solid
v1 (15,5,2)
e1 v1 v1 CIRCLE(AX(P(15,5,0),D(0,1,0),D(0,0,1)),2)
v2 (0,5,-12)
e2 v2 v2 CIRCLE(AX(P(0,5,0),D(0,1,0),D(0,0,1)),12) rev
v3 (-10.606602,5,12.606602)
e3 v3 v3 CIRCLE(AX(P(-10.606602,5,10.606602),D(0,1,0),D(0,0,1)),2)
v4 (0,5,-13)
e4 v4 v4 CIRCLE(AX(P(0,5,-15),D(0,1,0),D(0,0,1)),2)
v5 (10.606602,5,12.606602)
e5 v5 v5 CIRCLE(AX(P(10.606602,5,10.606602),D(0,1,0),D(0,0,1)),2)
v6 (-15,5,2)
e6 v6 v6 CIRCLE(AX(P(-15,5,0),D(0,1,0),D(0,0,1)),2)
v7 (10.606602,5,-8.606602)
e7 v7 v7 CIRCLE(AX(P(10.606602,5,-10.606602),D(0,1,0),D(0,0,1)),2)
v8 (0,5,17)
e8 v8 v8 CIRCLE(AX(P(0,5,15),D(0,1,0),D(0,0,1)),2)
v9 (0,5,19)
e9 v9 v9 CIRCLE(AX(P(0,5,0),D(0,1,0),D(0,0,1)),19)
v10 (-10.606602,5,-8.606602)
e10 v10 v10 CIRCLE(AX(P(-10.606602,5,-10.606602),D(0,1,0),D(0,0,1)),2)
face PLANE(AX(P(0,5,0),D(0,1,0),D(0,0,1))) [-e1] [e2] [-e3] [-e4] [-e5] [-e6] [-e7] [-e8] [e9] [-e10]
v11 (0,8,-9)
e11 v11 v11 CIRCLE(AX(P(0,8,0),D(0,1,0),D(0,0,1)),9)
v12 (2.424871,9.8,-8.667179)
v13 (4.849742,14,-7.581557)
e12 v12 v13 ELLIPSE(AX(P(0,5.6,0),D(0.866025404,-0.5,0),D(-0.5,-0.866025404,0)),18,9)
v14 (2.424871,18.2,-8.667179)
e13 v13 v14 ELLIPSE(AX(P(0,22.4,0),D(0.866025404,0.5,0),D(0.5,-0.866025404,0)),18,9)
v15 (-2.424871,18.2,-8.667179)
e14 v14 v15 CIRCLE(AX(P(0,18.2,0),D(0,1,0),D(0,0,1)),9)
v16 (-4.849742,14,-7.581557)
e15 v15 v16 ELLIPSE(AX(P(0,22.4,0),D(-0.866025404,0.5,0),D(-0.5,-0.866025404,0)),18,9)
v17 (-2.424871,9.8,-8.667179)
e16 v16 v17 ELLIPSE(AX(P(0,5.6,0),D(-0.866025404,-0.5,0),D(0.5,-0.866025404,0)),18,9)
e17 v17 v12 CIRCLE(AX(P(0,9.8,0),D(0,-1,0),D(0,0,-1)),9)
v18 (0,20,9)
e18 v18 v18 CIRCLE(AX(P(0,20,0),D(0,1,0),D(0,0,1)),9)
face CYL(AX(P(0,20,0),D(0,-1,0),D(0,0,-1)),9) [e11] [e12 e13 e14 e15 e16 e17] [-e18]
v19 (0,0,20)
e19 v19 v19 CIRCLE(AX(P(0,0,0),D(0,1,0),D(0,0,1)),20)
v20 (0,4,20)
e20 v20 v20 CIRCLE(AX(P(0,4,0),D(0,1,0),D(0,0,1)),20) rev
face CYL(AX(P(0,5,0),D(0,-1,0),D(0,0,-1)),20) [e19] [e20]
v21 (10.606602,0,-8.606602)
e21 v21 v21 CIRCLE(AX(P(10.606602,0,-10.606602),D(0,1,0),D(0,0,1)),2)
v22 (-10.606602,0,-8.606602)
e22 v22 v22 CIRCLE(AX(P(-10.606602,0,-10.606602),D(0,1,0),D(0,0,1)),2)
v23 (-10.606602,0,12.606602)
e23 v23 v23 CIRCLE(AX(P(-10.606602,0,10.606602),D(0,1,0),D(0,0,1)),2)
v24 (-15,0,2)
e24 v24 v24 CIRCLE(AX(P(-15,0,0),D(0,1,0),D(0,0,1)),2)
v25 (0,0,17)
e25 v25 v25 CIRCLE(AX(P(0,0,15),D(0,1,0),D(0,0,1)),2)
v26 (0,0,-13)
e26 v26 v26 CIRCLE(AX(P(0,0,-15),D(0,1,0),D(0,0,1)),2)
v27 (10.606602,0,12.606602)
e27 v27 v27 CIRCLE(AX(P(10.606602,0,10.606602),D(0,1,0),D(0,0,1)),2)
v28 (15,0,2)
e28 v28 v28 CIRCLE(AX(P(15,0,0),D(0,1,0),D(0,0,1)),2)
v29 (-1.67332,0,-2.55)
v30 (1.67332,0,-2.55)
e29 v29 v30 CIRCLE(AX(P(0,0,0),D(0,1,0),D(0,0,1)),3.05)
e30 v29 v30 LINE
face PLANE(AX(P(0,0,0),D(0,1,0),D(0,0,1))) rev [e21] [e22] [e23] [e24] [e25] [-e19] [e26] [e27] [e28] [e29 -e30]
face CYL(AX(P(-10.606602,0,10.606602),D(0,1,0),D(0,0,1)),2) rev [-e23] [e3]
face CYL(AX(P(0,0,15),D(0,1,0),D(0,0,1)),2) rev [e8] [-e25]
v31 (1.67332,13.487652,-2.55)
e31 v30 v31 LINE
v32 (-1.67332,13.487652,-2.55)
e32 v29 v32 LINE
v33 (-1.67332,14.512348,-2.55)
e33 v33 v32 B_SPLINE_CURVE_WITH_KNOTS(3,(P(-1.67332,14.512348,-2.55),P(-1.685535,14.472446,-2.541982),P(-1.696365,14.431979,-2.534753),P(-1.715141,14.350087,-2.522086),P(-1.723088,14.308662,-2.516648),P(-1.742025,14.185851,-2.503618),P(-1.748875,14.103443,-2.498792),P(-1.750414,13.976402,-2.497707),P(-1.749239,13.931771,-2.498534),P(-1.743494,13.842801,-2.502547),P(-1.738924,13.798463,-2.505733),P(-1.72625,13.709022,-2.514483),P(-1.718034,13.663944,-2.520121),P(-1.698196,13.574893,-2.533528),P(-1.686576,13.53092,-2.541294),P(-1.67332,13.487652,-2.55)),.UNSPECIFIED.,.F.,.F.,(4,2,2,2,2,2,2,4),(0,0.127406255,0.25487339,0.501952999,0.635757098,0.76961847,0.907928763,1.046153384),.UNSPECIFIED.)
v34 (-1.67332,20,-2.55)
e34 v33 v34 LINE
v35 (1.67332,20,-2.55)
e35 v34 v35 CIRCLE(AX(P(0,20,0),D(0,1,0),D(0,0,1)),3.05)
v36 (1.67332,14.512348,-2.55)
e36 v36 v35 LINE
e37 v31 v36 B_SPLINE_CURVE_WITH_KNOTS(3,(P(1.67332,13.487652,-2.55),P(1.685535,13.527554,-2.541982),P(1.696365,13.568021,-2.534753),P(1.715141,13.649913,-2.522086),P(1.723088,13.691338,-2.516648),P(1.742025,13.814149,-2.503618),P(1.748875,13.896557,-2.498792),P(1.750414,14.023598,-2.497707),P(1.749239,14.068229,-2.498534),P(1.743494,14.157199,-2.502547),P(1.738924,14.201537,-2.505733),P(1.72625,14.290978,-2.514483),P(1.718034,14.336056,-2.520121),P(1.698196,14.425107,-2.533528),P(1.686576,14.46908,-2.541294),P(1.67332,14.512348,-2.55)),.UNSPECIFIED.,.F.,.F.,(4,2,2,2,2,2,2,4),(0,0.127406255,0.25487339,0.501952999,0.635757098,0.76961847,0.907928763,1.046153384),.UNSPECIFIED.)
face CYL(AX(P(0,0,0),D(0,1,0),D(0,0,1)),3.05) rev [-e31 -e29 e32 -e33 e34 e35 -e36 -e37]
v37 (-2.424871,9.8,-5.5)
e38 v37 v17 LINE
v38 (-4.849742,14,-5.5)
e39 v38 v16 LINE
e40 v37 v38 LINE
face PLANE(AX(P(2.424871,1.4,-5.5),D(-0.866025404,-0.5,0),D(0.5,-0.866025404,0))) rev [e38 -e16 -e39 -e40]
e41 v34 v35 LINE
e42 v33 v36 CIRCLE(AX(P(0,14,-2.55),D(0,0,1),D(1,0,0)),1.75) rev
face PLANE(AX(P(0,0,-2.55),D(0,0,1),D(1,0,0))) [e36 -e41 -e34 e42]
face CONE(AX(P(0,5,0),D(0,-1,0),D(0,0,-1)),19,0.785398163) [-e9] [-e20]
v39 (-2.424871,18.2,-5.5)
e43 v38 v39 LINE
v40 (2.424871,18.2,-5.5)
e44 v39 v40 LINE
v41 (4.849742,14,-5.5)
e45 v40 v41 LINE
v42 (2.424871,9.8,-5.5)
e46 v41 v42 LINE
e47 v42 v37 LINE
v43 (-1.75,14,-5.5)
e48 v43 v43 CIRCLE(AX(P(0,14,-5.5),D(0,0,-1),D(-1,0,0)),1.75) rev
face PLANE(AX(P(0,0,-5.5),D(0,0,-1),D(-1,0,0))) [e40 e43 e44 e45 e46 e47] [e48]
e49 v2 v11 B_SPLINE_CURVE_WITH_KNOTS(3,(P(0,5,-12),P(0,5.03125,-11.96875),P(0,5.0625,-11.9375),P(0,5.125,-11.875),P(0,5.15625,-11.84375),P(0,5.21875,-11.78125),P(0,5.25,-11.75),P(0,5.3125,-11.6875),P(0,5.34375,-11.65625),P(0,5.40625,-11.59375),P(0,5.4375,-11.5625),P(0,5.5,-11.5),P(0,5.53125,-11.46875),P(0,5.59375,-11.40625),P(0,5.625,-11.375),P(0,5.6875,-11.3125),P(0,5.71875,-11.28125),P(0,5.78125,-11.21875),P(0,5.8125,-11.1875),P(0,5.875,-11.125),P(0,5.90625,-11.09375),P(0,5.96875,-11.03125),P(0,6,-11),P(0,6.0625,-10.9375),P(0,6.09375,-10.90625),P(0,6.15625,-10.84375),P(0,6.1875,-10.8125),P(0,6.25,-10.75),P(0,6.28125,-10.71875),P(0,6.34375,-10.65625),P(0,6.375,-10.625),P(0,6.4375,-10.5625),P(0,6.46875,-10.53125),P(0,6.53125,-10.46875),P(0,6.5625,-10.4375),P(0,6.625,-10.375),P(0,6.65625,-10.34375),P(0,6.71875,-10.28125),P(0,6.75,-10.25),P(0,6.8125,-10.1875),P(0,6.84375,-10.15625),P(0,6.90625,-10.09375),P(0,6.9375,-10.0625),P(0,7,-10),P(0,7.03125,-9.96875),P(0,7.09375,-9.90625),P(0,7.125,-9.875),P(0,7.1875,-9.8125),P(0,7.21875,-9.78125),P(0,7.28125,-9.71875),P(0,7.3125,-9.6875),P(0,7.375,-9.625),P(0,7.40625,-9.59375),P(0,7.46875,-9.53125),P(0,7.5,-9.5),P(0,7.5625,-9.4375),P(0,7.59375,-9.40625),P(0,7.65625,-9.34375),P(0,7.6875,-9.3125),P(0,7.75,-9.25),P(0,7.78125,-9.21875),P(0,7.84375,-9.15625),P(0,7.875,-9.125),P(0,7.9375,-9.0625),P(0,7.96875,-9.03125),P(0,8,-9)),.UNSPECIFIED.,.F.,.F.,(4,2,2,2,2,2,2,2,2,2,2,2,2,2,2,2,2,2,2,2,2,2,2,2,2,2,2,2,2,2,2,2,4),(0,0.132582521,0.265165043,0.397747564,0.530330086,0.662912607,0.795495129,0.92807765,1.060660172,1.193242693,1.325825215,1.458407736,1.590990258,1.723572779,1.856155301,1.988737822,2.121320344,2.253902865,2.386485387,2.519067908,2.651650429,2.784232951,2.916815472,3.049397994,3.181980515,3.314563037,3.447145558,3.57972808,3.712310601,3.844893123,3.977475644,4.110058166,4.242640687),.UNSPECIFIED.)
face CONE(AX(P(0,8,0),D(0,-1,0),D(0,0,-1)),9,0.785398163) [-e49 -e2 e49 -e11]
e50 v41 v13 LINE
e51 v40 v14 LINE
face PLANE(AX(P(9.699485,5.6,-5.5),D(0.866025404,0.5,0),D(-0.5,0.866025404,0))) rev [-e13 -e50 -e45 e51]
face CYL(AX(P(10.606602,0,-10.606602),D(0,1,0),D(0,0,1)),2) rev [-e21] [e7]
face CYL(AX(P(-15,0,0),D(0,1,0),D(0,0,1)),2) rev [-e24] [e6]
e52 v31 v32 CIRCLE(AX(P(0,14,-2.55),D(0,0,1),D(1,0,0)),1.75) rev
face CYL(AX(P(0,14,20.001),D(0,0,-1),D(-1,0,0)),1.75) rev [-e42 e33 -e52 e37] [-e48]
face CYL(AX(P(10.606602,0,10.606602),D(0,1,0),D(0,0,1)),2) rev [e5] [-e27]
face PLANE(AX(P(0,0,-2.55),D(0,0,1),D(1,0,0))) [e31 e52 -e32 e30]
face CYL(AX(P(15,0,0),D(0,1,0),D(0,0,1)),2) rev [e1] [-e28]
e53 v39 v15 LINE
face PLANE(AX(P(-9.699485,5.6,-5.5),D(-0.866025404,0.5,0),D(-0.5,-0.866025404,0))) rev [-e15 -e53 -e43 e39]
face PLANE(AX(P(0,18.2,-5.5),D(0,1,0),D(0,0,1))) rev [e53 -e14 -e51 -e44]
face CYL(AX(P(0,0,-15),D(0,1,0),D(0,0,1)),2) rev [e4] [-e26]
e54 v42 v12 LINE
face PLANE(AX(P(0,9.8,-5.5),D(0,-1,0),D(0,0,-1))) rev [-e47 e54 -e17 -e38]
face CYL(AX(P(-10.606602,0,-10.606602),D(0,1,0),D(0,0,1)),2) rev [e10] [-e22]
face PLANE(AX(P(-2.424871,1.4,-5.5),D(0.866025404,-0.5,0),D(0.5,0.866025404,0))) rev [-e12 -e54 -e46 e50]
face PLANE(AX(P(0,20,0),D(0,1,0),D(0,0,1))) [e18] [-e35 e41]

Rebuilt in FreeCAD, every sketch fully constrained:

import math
import FreeCAD as App
import Part
import Sketcher

V = App.Vector
Q = App.Units.Quantity


def edges_at(feature, points):
    """Names of the edges that pass closest to the given points."""
    edges = feature.Shape.Edges
    near = lambda p: min(range(len(edges)), key=lambda i: edges[i].distToShape(Part.Vertex(*p))[0])
    return sorted({f"Edge{near(p) + 1}" for p in points})

doc = App.newDocument("Part")
body = doc.addObject("PartDesign::Body", "Body")

sketch1 = body.newObject("Sketcher::SketchObject", "Sketch")
sketch1.AttachmentSupport = (doc.getObject("XZ_Plane"), [""])
sketch1.MapMode = "FlatFace"
sketch1.addGeometry(Part.Circle(V(0, 0, 0), V(0, 0, 1), 20), False)
sketch1.addConstraint(Sketcher.Constraint("Coincident", 0, 3, -1, 1))
sketch1.addConstraint(Sketcher.Constraint("Diameter", 0, 40.0))
pad1 = body.newObject("PartDesign::Pad", "Pad")
pad1.Profile = sketch1
pad1.Length = 5
pad1.Reversed = True

sketch2 = body.newObject("Sketcher::SketchObject", "Sketch001")
sketch2.AttachmentSupport = (doc.getObject("XZ_Plane"), [""])
sketch2.MapMode = "FlatFace"
sketch2.AttachmentOffset = App.Placement(V(0, 0, -5), App.Rotation())
sketch2.addGeometry(Part.Circle(V(0, -15, 0), V(0, 0, 1), 2), False)
sketch2.addGeometry(Part.Circle(V(10.6, -10.6, 0), V(0, 0, 1), 2), False)
sketch2.addGeometry(Part.Circle(V(15, 0, 0), V(0, 0, 1), 2), False)
sketch2.addGeometry(Part.Circle(V(10.6, 10.6, 0), V(0, 0, 1), 2), False)
sketch2.addGeometry(Part.Circle(V(0, 15, 0), V(0, 0, 1), 2), False)
sketch2.addGeometry(Part.Circle(V(-10.6, 10.6, 0), V(0, 0, 1), 2), False)
sketch2.addGeometry(Part.Circle(V(-15, 0, 0), V(0, 0, 1), 2), False)
sketch2.addGeometry(Part.Circle(V(-10.6, -10.6, 0), V(0, 0, 1), 2), False)
sketch2.addConstraint(Sketcher.Constraint("Equal", 0, 1))
sketch2.addConstraint(Sketcher.Constraint("Equal", 1, 2))
sketch2.addConstraint(Sketcher.Constraint("Equal", 2, 3))
sketch2.addConstraint(Sketcher.Constraint("Equal", 3, 4))
sketch2.addConstraint(Sketcher.Constraint("Equal", 4, 5))
sketch2.addConstraint(Sketcher.Constraint("Equal", 5, 6))
sketch2.addConstraint(Sketcher.Constraint("Equal", 6, 7))
sketch2.addConstraint(Sketcher.Constraint("Symmetric", 0, 3, 4, 3, -1, 1))
sketch2.addConstraint(Sketcher.Constraint("Symmetric", 1, 3, 5, 3, -1, 1))
sketch2.addConstraint(Sketcher.Constraint("Symmetric", 2, 3, 6, 3, -1, 1))
sketch2.addConstraint(Sketcher.Constraint("Symmetric", 3, 3, 7, 3, -1, 1))
sketch2.addConstraint(Sketcher.Constraint("Symmetric", 3, 3, 5, 3, -2))
sketch2.addConstraint(Sketcher.Constraint("PointOnObject", 0, 3, -2))
sketch2.addConstraint(Sketcher.Constraint("PointOnObject", 2, 3, -1))
sketch2.addConstraint(Sketcher.Constraint("Diameter", 0, 4.0))
sketch2.addConstraint(Sketcher.Constraint("DistanceY", 0, 3, -1, 1, 15.0))
sketch2.addConstraint(Sketcher.Constraint("DistanceX", -1, 1, 2, 3, 15.0))
sketch2.addConstraint(Sketcher.Constraint("DistanceX", -1, 1, 1, 3, 10.606602))
sketch2.addConstraint(Sketcher.Constraint("DistanceY", 1, 3, -1, 1, 10.606602))
pocket1 = body.newObject("PartDesign::Pocket", "Pocket")
pocket1.Profile = sketch2
pocket1.Type = "ThroughAll"
pocket1.Reversed = True

sketch3 = body.newObject("Sketcher::SketchObject", "Sketch002")
sketch3.AttachmentSupport = (doc.getObject("XZ_Plane"), [""])
sketch3.MapMode = "FlatFace"
sketch3.AttachmentOffset = App.Placement(V(0, 0, -5), App.Rotation())
sketch3.addGeometry(Part.Circle(V(0, 0, 0), V(0, 0, 1), 9), False)
sketch3.addConstraint(Sketcher.Constraint("Coincident", 0, 3, -1, 1))
sketch3.addConstraint(Sketcher.Constraint("Diameter", 0, 18.0))
pad2 = body.newObject("PartDesign::Pad", "Pad001")
pad2.Profile = sketch3
pad2.Length = 15
pad2.Reversed = True

sketch4 = body.newObject("Sketcher::SketchObject", "Sketch003")
sketch4.AttachmentSupport = (doc.getObject("XZ_Plane"), [""])
sketch4.MapMode = "FlatFace"
sketch4.AttachmentOffset = App.Placement(V(0, 0, -20), App.Rotation())
sketch4.addGeometry(Part.LineSegment(V(1.7, -2.5, 0), V(-1.7, -2.5, 0)), False)
sketch4.addGeometry(Part.ArcOfCircle(Part.Circle(V(0, 0, 0), V(0, 0, 1), 3), math.radians(0), math.radians(237)), False)
sketch4.addGeometry(Part.ArcOfCircle(Part.Circle(V(0, 0, 0), V(0, 0, 1), 3), math.radians(-57), math.radians(0)), False)
sketch4.addConstraint(Sketcher.Constraint("Coincident", 0, 2, 1, 2))
sketch4.addConstraint(Sketcher.Constraint("Tangent", 1, 1, 2, 2))
sketch4.addConstraint(Sketcher.Constraint("Coincident", 2, 1, 0, 1))
sketch4.addConstraint(Sketcher.Constraint("Horizontal", 0))
sketch4.addConstraint(Sketcher.Constraint("Coincident", 1, 3, -1, 1))
sketch4.addConstraint(Sketcher.Constraint("Equal", 1, 2))
sketch4.addConstraint(Sketcher.Constraint("PointOnObject", 1, 1, -1))
sketch4.addConstraint(Sketcher.Constraint("Radius", 1, 3.05))
sketch4.addConstraint(Sketcher.Constraint("DistanceY", 0, 2, -1, 1, 2.55))
pocket2 = body.newObject("PartDesign::Pocket", "Pocket001")
pocket2.Profile = sketch4
pocket2.Type = "ThroughAll"
pocket2.Reversed = True
doc.recompute()

chamfer = body.newObject("PartDesign::Chamfer", "Chamfer")
chamfer.Base = (pocket2, edges_at(pocket2, [(0, 5, -9)]))
chamfer.Size = 3
doc.recompute()

chamfer2 = body.newObject("PartDesign::Chamfer", "Chamfer001")
chamfer2.Base = (chamfer, edges_at(chamfer, [(0, 5, -20)]))
chamfer2.Size = 1

sketch5 = body.newObject("Sketcher::SketchObject", "Sketch004")
sketch5.AttachmentSupport = (doc.getObject("XY_Plane"), [""])
sketch5.MapMode = "FlatFace"
sketch5.AttachmentOffset = App.Placement(V(0, 0, -9), App.Rotation())
sketch5.addGeometry(Part.LineSegment(V(-2.4, 9.8, 0), V(-4.8, 14, 0)), False)
sketch5.addGeometry(Part.LineSegment(V(-4.8, 14, 0), V(-2.4, 18.2, 0)), False)
sketch5.addGeometry(Part.LineSegment(V(-2.4, 18.2, 0), V(2.4, 18.2, 0)), False)
sketch5.addGeometry(Part.LineSegment(V(2.4, 18.2, 0), V(4.8, 14, 0)), False)
sketch5.addGeometry(Part.LineSegment(V(4.8, 14, 0), V(2.4, 9.8, 0)), False)
sketch5.addGeometry(Part.LineSegment(V(2.4, 9.8, 0), V(-2.4, 9.8, 0)), False)
sketch5.addConstraint(Sketcher.Constraint("Coincident", 0, 2, 1, 1))
sketch5.addConstraint(Sketcher.Constraint("Coincident", 1, 2, 2, 1))
sketch5.addConstraint(Sketcher.Constraint("Coincident", 2, 2, 3, 1))
sketch5.addConstraint(Sketcher.Constraint("Coincident", 3, 2, 4, 1))
sketch5.addConstraint(Sketcher.Constraint("Coincident", 4, 2, 5, 1))
sketch5.addConstraint(Sketcher.Constraint("Coincident", 5, 2, 0, 1))
sketch5.addConstraint(Sketcher.Constraint("Horizontal", 2))
sketch5.addConstraint(Sketcher.Constraint("Horizontal", 5))
sketch5.addConstraint(Sketcher.Constraint("Symmetric", 0, 2, 3, 2, -2))
sketch5.addConstraint(Sketcher.Constraint("Parallel", 0, 3))
sketch5.addConstraint(Sketcher.Constraint("Parallel", 1, 4))
sketch5.addConstraint(Sketcher.Constraint("Vertical", 2, 2, 4, 2))
sketch5.addConstraint(Sketcher.Constraint("Vertical", 1, 2, 5, 2))
sketch5.addConstraint(Sketcher.Constraint("Angle", 0, Q("120 deg")))
sketch5.addConstraint(Sketcher.Constraint("DistanceY", -1, 1, 0, 2, 14.0))
sketch5.addConstraint(Sketcher.Constraint("DistanceY", -1, 1, 1, 2, 18.2))
sketch5.addConstraint(Sketcher.Constraint("DistanceX", 2, 1, 2, 2, 4.849742))
pocket3 = body.newObject("PartDesign::Pocket", "Pocket002")
pocket3.Profile = sketch5
pocket3.Length = 3.5
pocket3.Reversed = True

sketch6 = body.newObject("Sketcher::SketchObject", "Sketch005")
sketch6.AttachmentSupport = (doc.getObject("XY_Plane"), [""])
sketch6.MapMode = "FlatFace"
sketch6.AttachmentOffset = App.Placement(V(0, 0, -9), App.Rotation())
sketch6.addGeometry(Part.Circle(V(0, 14, 0), V(0, 0, 1), 1.8), False)
sketch6.addConstraint(Sketcher.Constraint("PointOnObject", 0, 3, -2))
sketch6.addConstraint(Sketcher.Constraint("Diameter", 0, 3.5))
sketch6.addConstraint(Sketcher.Constraint("DistanceY", -1, 1, 0, 3, 14.0))
pocket4 = body.newObject("PartDesign::Pocket", "Pocket003")
pocket4.Profile = sketch6
pocket4.Length = 6.502001
pocket4.Reversed = True

doc.recompute()
